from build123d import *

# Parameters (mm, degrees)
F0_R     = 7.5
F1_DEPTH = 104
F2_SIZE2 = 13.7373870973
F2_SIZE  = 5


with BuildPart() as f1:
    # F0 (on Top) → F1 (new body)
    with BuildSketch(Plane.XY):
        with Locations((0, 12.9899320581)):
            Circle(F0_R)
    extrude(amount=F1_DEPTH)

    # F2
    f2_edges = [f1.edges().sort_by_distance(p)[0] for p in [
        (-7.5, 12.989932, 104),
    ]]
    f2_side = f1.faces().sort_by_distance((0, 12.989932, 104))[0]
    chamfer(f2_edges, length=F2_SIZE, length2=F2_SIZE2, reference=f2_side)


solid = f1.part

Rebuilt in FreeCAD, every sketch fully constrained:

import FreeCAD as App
import Part
import Sketcher
from FreeCAD import Vector


def edges_at(feature, points):
    """Names of the edges that pass closest to the given points."""
    edges = feature.Shape.Edges
    near = lambda p: min(range(len(edges)), key=lambda i: edges[i].distToShape(Part.Vertex(*p))[0])
    return sorted({f"Edge{near(p) + 1}" for p in points})

doc = App.newDocument("Part")
body = doc.addObject("PartDesign::Body", "Body")

# Sketch on XY plane
sketch1 = doc.addObject("Sketcher::SketchObject", "Sketch")
body.addObject(sketch1)
sketch1.AttachmentSupport = (doc.XY_Plane, [""])
sketch1.MapMode = "FlatFace"
sketch1.addGeometry(Part.Circle(Vector(0, 13, 0), Vector(0, 0, 1), 8), False)
sketch1.addConstraint(Sketcher.Constraint("PointOnObject", 0, 3, -2))
sketch1.addConstraint(Sketcher.Constraint("Diameter", 0, 15.0))
sketch1.addConstraint(Sketcher.Constraint("DistanceY", -1, 1, 0, 3, 12.989932))
pad1 = doc.addObject("PartDesign::Pad", "Pad")
body.addObject(pad1)
pad1.Profile = sketch1
pad1.Length = 104
doc.recompute()

chamfer = doc.addObject("PartDesign::Chamfer", "Chamfer")
body.addObject(chamfer)
chamfer.Base = (pad1, edges_at(pad1, [(-7.5, 12.99, 104)]))
chamfer.ChamferType = "Two distances"
chamfer.Size = 5
chamfer.Size2 = 13.737387
chamfer.FlipDirection = True

doc.recompute()
